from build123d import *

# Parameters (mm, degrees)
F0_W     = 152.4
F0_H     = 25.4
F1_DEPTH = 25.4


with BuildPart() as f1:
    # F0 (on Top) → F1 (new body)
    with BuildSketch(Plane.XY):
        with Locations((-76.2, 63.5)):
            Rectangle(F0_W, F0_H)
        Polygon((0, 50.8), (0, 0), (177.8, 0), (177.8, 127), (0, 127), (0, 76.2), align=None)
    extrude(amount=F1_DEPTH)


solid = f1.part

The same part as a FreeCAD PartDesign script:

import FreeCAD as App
import Part
import Sketcher
Q = App.Units.Quantity

doc = App.newDocument("Part")
body = doc.addObject("PartDesign::Body", "Body")

# Sketch on XY plane
sketch1 = body.newObject("Sketcher::SketchObject", "Sketch")
sketch1.AttachmentSupport = (doc.getObject("XY_Plane"), [""])
sketch1.MapMode = "FlatFace"
sketch1.addGeometry([
    Part.LineSegment(App.Vector(-152, 76, 0), App.Vector(-152, 51, 0)),  # 0
    Part.LineSegment(App.Vector(-152, 51, 0), App.Vector(0, 51, 0)),  # 1
    Part.LineSegment(App.Vector(0, 51, 0), App.Vector(0, 0, 0)),  # 2
    Part.LineSegment(App.Vector(0, 0, 0), App.Vector(178, 0, 0)),  # 3
    Part.LineSegment(App.Vector(178, 0, 0), App.Vector(178, 127, 0)),  # 4
    Part.LineSegment(App.Vector(178, 127, 0), App.Vector(0, 127, 0)),  # 5
    Part.LineSegment(App.Vector(0, 127, 0), App.Vector(0, 76, 0)),  # 6
    Part.LineSegment(App.Vector(0, 76, 0), App.Vector(-152, 76, 0)),  # 7
], False)
sketch1.addConstraint([
    Sketcher.Constraint("Coincident", 0, 2, 1, 1),
    Sketcher.Constraint("Coincident", 1, 2, 2, 1),
    Sketcher.Constraint("Coincident", 2, 2, 3, 1),
    Sketcher.Constraint("Coincident", 3, 2, 4, 1),
    Sketcher.Constraint("Coincident", 4, 2, 5, 1),
    Sketcher.Constraint("Coincident", 5, 2, 6, 1),
    Sketcher.Constraint("Coincident", 6, 2, 7, 1),
    Sketcher.Constraint("Coincident", 7, 2, 0, 1),
    Sketcher.Constraint("Vertical", 0),
    Sketcher.Constraint("Horizontal", 1),
    Sketcher.Constraint("Vertical", 2),
    Sketcher.Constraint("Horizontal", 3),
    Sketcher.Constraint("Vertical", 4),
    Sketcher.Constraint("Horizontal", 5),
    Sketcher.Constraint("Vertical", 6),
    Sketcher.Constraint("Horizontal", 7),
    Sketcher.Constraint("Coincident", 2, 2, -1, 1),
    Sketcher.Constraint("PointOnObject", 5, 2, -2),
    Sketcher.Constraint("Equal", 2, 6),
    Sketcher.Constraint("DistanceX", 1, 1, 1, 2, Q("6 in")),
    Sketcher.Constraint("DistanceX", 3, 1, 3, 2, Q("7 in")),
    Sketcher.Constraint("DistanceY", 0, 2, 0, 1, Q("1 in")),
    Sketcher.Constraint("DistanceY", 2, 2, 2, 1, Q("2 in")),
])
pad1 = body.newObject("PartDesign::Pad", "Pad")
pad1.Profile = sketch1
pad1.Length = Q("1 in")

doc.recompute()
